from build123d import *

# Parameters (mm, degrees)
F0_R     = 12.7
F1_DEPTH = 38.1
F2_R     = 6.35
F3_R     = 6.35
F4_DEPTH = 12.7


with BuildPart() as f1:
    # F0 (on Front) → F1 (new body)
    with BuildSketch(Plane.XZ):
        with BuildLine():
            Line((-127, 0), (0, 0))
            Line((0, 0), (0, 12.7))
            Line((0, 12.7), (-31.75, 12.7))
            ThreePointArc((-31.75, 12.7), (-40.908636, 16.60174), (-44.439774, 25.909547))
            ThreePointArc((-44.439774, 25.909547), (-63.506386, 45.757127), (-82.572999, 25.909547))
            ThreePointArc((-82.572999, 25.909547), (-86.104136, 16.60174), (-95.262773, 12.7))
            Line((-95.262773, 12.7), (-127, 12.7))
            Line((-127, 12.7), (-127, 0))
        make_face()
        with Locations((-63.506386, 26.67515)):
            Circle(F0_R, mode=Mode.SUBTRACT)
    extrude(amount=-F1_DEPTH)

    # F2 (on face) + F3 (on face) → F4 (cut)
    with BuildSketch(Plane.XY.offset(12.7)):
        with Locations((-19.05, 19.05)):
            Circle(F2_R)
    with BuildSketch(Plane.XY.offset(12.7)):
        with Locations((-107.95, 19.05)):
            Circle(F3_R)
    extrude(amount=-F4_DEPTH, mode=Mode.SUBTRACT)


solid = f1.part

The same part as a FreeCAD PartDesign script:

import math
import FreeCAD as App
import Part
import Sketcher

V = App.Vector
Q = App.Units.Quantity

doc = App.newDocument("Part")
body = doc.addObject("PartDesign::Body", "Body")

# Sketch on XZ plane
sketch1 = body.newObject("Sketcher::SketchObject", "Sketch")
sketch1.AttachmentSupport = (doc.getObject("XZ_Plane"), [""])
sketch1.MapMode = "FlatFace"
sketch1.addGeometry([
    Part.LineSegment(V(-127, 0, 0), V(0, 0, 0)),  # 0
    Part.LineSegment(V(0, 0, 0), V(0, 13, 0)),  # 1
    Part.LineSegment(V(0, 13, 0), V(-32, 13, 0)),  # 2
    Part.ArcOfCircle(Part.Circle(V(-32, 25, 0), V(0, 0, 1), 13), math.radians(178), math.radians(270)),  # 3
    Part.ArcOfCircle(Part.Circle(V(-64, 27, 0), V(0, 0, 1), 19), math.radians(-2), math.radians(182)),  # 4
    Part.ArcOfCircle(Part.Circle(V(-95, 25, 0), V(0, 0, 1), 13), math.radians(-90), math.radians(2)),  # 5
    Part.LineSegment(V(-95, 13, 0), V(-127, 13, 0)),  # 6
    Part.LineSegment(V(-127, 13, 0), V(-127, 0, 0)),  # 7
    Part.Circle(V(-64, 27, 0), V(0, 0, 1), 13),  # 8
], False)
sketch1.addConstraint([
    Sketcher.Constraint("Coincident", 0, 2, 1, 1),
    Sketcher.Constraint("Coincident", 1, 2, 2, 1),
    Sketcher.Constraint("Tangent", 2, 2, 3, 2),
    Sketcher.Constraint("Tangent", 3, 1, 4, 1),
    Sketcher.Constraint("Tangent", 4, 2, 5, 2),
    Sketcher.Constraint("Tangent", 5, 1, 6, 1),
    Sketcher.Constraint("Coincident", 6, 2, 7, 1),
    Sketcher.Constraint("Coincident", 7, 2, 0, 1),
    Sketcher.Constraint("Horizontal", 0),
    Sketcher.Constraint("Vertical", 1),
    Sketcher.Constraint("Horizontal", 2),
    Sketcher.Constraint("Horizontal", 6),
    Sketcher.Constraint("Vertical", 7),
    Sketcher.Constraint("Coincident", 0, 2, -1, 1),
    Sketcher.Constraint("Coincident", 8, 3, 4, 3),
    Sketcher.Constraint("Equal", 3, 5),
    Sketcher.Constraint("Equal", 5, 8),
    Sketcher.Constraint("Horizontal", 3, 3, 5, 3),
    Sketcher.Constraint("Diameter", 8, Q("1 in")),
    Sketcher.Constraint("DistanceX", 0, 1, 0, 2, Q("5 in")),
    Sketcher.Constraint("DistanceY", 1, 1, 1, 2, Q("0.5 in")),
    Sketcher.Constraint("DistanceX", 2, 2, 2, 1, Q("1.25 in")),
    Sketcher.Constraint("Radius", 4, 19.081977),
    Sketcher.Constraint("DistanceX", 4, 2, -1, 1, 82.572999),
])
pad1 = body.newObject("PartDesign::Pad", "Pad")
pad1.Profile = sketch1
pad1.Length = Q("1.5 in")
pad1.Reversed = True

# Sketch on XY plane
sketch2 = body.newObject("Sketcher::SketchObject", "Sketch001")
sketch2.AttachmentSupport = (doc.getObject("XY_Plane"), [""])
sketch2.MapMode = "FlatFace"
sketch2.AttachmentOffset = App.Placement(V(0, 0, 0.5 * 25.4), App.Rotation())
sketch2.addGeometry([
    Part.Circle(V(-19, 19, 0), V(0, 0, 1), 6),
    Part.Circle(V(-108, 19, 0), V(0, 0, 1), 6),
], False)
sketch2.addConstraint([
    Sketcher.Constraint("Equal", 0, 1),
    Sketcher.Constraint("Horizontal", 0, 3, 1, 3),
    Sketcher.Constraint("Diameter", 0, Q("0.5 in")),
    Sketcher.Constraint("DistanceX", 1, 3, 0, 3, Q("3.5 in")),
    Sketcher.Constraint("DistanceX", 0, 3, -1, 1, Q("0.75 in")),
    Sketcher.Constraint("DistanceY", -1, 1, 0, 3, Q("0.75 in")),
])
pocket1 = body.newObject("PartDesign::Pocket", "Pocket")
pocket1.Profile = sketch2
pocket1.Length = Q("0.5 in")

doc.recompute()
